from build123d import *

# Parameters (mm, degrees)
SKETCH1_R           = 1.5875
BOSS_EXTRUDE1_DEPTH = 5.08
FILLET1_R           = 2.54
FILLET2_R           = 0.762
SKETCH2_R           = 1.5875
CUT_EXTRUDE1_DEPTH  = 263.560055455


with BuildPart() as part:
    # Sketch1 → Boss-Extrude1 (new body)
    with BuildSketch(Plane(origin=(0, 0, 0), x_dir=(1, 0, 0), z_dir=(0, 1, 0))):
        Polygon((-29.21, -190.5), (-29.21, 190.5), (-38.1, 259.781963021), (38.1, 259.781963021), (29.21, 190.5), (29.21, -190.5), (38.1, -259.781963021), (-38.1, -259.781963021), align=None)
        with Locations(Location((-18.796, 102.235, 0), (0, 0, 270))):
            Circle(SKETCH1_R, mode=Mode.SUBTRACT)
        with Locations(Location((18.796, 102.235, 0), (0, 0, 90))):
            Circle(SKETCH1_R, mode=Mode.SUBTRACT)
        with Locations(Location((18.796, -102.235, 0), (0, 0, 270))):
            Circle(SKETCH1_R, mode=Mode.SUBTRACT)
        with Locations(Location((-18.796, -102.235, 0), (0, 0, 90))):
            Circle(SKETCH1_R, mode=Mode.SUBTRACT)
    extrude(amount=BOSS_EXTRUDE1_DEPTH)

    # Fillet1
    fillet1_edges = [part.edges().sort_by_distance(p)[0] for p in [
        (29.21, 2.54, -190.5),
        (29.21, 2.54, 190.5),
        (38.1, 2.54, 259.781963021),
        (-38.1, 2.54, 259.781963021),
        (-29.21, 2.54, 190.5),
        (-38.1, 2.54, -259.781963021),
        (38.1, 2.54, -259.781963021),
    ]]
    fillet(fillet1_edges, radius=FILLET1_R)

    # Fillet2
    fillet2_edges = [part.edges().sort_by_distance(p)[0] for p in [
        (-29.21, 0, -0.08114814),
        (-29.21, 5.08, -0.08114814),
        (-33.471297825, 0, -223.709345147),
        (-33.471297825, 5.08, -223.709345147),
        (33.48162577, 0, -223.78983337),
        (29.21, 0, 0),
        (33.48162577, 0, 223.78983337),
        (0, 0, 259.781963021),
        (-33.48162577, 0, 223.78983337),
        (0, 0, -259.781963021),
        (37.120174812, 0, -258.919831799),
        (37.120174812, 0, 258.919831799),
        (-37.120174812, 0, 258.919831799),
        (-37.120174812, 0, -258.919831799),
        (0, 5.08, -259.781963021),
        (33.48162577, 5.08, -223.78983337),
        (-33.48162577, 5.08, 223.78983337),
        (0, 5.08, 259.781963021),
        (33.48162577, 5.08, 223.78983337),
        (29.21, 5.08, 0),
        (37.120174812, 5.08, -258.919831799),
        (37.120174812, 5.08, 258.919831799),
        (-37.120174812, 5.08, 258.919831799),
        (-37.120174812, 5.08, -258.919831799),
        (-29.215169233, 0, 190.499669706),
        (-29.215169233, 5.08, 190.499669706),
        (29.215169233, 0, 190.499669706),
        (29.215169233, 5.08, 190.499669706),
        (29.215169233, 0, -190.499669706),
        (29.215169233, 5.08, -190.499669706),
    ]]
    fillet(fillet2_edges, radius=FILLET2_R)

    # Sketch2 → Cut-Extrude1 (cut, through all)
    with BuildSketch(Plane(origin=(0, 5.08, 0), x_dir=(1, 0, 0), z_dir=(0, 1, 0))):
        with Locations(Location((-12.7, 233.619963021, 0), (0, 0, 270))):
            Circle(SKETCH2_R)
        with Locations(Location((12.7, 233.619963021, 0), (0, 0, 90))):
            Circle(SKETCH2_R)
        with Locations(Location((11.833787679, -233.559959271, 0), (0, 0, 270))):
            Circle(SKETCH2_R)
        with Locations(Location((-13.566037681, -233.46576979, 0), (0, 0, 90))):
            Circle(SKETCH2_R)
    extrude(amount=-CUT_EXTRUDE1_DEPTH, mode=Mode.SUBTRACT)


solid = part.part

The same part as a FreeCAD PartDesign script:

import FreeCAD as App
import Part
import Sketcher
Q = App.Units.Quantity


def edges_at(feature, points):
    """Names of the edges that pass closest to the given points."""
    edges = feature.Shape.Edges
    near = lambda p: min(range(len(edges)), key=lambda i: edges[i].distToShape(Part.Vertex(*p))[0])
    return sorted({f"Edge{near(p) + 1}" for p in points})


def add_polygon(sketch, points):
    """Adds a closed chain of lines whose ends are joined by coincident constraints."""
    first, n = sketch.GeometryCount, len(points)
    for a, b in zip(points, points[1:] + points[:1]):
        sketch.addGeometry(Part.LineSegment(App.Vector(*a, 0), App.Vector(*b, 0)), False)
    for i in range(n):
        sketch.addConstraint(Sketcher.Constraint("Coincident", first + i, 2, first + (i + 1) % n, 1))

doc = App.newDocument("Part")
params = doc.addObject("Spreadsheet::Sheet", "Params")
for row, (alias, value) in enumerate([
    ("sketch1_width", "3 in"),
    ("sketch1_height", "15 in"),
    ("sketch1_diameter", "0.125 in"),
    ("sketch1_length", "2.75 in"),
    ("pad1_length", "0.2 in"),
    ("fillet_radius", "0.1 in"),
    ("fillet2_radius", "0.03 in"),
    ("sketch2_diameter", "0.125 in"),
], start=1):
    params.set(f"A{row}", alias)
    params.set(f"B{row}", "=" + value)
    params.setAlias(f"B{row}", alias)

body = doc.addObject("PartDesign::Body", "Body")

# Sketch on XZ plane
sketch1 = doc.addObject("Sketcher::SketchObject", "Sketch")
body.addObject(sketch1)
sketch1.AttachmentSupport = (doc.XZ_Plane, [""])
sketch1.MapMode = "FlatFace"
add_polygon(sketch1, [(-29.2, -190.5), (-29.2, 190.5), (-38.1, 259.8), (38.1, 259.8), (29.2, 190.5), (29.2, -190.5), (38.1, -259.8), (-38.1, -259.8)])  # lines 0-7
sketch1.addGeometry(Part.Circle(App.Vector(18.8, 102.2, 0), App.Vector(0, 0, 1), 1.6), False)  # 8
sketch1.addGeometry(Part.Circle(App.Vector(-18.8, 102.2, 0), App.Vector(0, 0, 1), 1.6), False)  # 9
sketch1.addGeometry(Part.Circle(App.Vector(18.8, -102.2, 0), App.Vector(0, 0, 1), 1.6), False)  # 10
sketch1.addGeometry(Part.Circle(App.Vector(-18.8, -102.2, 0), App.Vector(0, 0, 1), 1.6), False)  # 11
sketch1.addConstraint(Sketcher.Constraint("Vertical", 0))
sketch1.addConstraint(Sketcher.Constraint("Horizontal", 2))
sketch1.addConstraint(Sketcher.Constraint("Vertical", 4))
sketch1.addConstraint(Sketcher.Constraint("Horizontal", 6))
sketch1.addConstraint(Sketcher.Constraint("Equal", 8, 9))
sketch1.addConstraint(Sketcher.Constraint("Equal", 9, 10))
sketch1.addConstraint(Sketcher.Constraint("Equal", 10, 11))
sketch1.addConstraint(Sketcher.Constraint("Symmetric", 9, 3, 10, 3, -1, 1))
sketch1.addConstraint(Sketcher.Constraint("Symmetric", 8, 3, 11, 3, -1, 1))
sketch1.addConstraint(Sketcher.Constraint("Symmetric", 0, 2, 4, 2, -1, 1))
sketch1.addConstraint(Sketcher.Constraint("Symmetric", 1, 2, 5, 2, -1, 1))
sketch1.addConstraint(Sketcher.Constraint("Symmetric", 8, 3, 9, 3, -2))
sketch1.addConstraint(Sketcher.Constraint("Parallel", 3, 7))
sketch1.addConstraint(Sketcher.Constraint("Horizontal", 0, 2, 3, 2))
sketch1.addConstraint(Sketcher.Constraint("Horizontal", 4, 2, 7, 2))
sketch1.addConstraint(Sketcher.Constraint("Vertical", 2, 2, 5, 2))
sketch1.addConstraint(Sketcher.Constraint("DistanceX", 2, 1, 2, 2, Q("3 in")))
sketch1.addConstraint(Sketcher.Constraint("DistanceY", 0, 1, 0, 2, Q("15 in")))
sketch1.addConstraint(Sketcher.Constraint("Diameter", 8, Q("0.125 in")))
sketch1.addConstraint(Sketcher.Constraint("DistanceX", 0, 2, 3, 2, Q("2.3 in")))
sketch1.addConstraint(Sketcher.Constraint("Distance", 1, Q("2.75 in")))
sketch1.addConstraint(Sketcher.Constraint("DistanceX", -1, 1, 8, 3, Q("0.74 in")))
sketch1.addConstraint(Sketcher.Constraint("DistanceY", 10, 3, 8, 3, Q("8.05 in")))
sketch1.setExpression("Constraints[24]", "Params.sketch1_width")
sketch1.setExpression("Constraints[25]", "Params.sketch1_height")
sketch1.setExpression("Constraints[26]", "Params.sketch1_diameter")
sketch1.setExpression("Constraints[28]", "Params.sketch1_length")
pad1 = doc.addObject("PartDesign::Pad", "Pad")
body.addObject(pad1)
pad1.Profile = sketch1
pad1.setExpression("Length", "Params.pad1_length")
pad1.Reversed = True
doc.recompute()

fillet = doc.addObject("PartDesign::Fillet", "Fillet")
body.addObject(fillet)
fillet.Base = (pad1, edges_at(pad1, [
    (29.21, 2.54, -190.5),
    (29.21, 2.54, 190.5),
    (38.1, 2.54, 259.782),
    (-38.1, 2.54, 259.782),
    (-29.21, 2.54, 190.5),
    (-38.1, 2.54, -259.782),
    (38.1, 2.54, -259.782),
]))
fillet.setExpression("Radius", "Params.fillet_radius")
doc.recompute()

fillet2 = doc.addObject("PartDesign::Fillet", "Fillet001")
body.addObject(fillet2)
fillet2.Base = (fillet, edges_at(fillet, [
    (-29.21, 0, -0.081),
    (-29.21, 5.08, -0.081),
    (-33.471, 0, -223.709),
    (-33.471, 5.08, -223.709),
    (33.482, 0, -223.79),
    (29.21, 0, 0),
    (33.482, 0, 223.79),
    (0, 0, 259.782),
    (-33.482, 0, 223.79),
    (0, 0, -259.782),
    (37.12, 0, -258.92),
    (37.12, 0, 258.92),
    (-37.12, 0, 258.92),
    (-37.12, 0, -258.92),
    (0, 5.08, -259.782),
    (33.482, 5.08, -223.79),
    (-33.482, 5.08, 223.79),
    (0, 5.08, 259.782),
    (33.482, 5.08, 223.79),
    (29.21, 5.08, 0),
    (37.12, 5.08, -258.92),
    (37.12, 5.08, 258.92),
    (-37.12, 5.08, 258.92),
    (-37.12, 5.08, -258.92),
    (-29.215, 0, 190.5),
    (-29.215, 5.08, 190.5),
    (29.215, 0, 190.5),
    (29.215, 5.08, 190.5),
    (29.215, 0, -190.5),
    (29.215, 5.08, -190.5),
]))
fillet2.setExpression("Radius", "Params.fillet2_radius")

# Sketch on XZ plane
sketch2 = doc.addObject("Sketcher::SketchObject", "Sketch001")
body.addObject(sketch2)
sketch2.AttachmentSupport = (doc.XZ_Plane, [""])
sketch2.MapMode = "FlatFace"
sketch2.AttachmentOffset = App.Placement(App.Vector(0, 0, -0.2 * 25.4), App.Rotation())
sketch2.addGeometry(Part.Circle(App.Vector(-12.7, -233.6, 0), App.Vector(0, 0, 1), 1.6), False)
sketch2.addGeometry(Part.Circle(App.Vector(12.7, -233.6, 0), App.Vector(0, 0, 1), 1.6), False)
sketch2.addGeometry(Part.Circle(App.Vector(11.8, 233.6, 0), App.Vector(0, 0, 1), 1.6), False)
sketch2.addGeometry(Part.Circle(App.Vector(-13.6, 233.5, 0), App.Vector(0, 0, 1), 1.6), False)
sketch2.addConstraint(Sketcher.Constraint("Equal", 0, 1))
sketch2.addConstraint(Sketcher.Constraint("Equal", 1, 2))
sketch2.addConstraint(Sketcher.Constraint("Equal", 2, 3))
sketch2.addConstraint(Sketcher.Constraint("Symmetric", 0, 3, 1, 3, -2))
sketch2.addConstraint(Sketcher.Constraint("Diameter", 0, Q("0.125 in")))
sketch2.addConstraint(Sketcher.Constraint("DistanceX", 0, 3, 1, 3, Q("1 in")))
sketch2.addConstraint(Sketcher.Constraint("DistanceY", -1, 1, 2, 3, Q("233.559959 mm")))
sketch2.addConstraint(Sketcher.Constraint("DistanceY", -1, 1, 3, 3, Q("233.46577 mm")))
sketch2.addConstraint(Sketcher.Constraint("DistanceY", 0, 3, -1, 1, Q("233.619963 mm")))
sketch2.addConstraint(Sketcher.Constraint("DistanceX", -1, 1, 2, 3, Q("11.833788 mm")))
sketch2.addConstraint(Sketcher.Constraint("DistanceX", 3, 3, -1, 1, Q("13.566038 mm")))
sketch2.setExpression("Constraints[4]", "Params.sketch2_diameter")
pocket1 = doc.addObject("PartDesign::Pocket", "Pocket")
body.addObject(pocket1)
pocket1.Profile = sketch2
pocket1.Type = "ThroughAll"
pocket1.Reversed = True

doc.recompute()
